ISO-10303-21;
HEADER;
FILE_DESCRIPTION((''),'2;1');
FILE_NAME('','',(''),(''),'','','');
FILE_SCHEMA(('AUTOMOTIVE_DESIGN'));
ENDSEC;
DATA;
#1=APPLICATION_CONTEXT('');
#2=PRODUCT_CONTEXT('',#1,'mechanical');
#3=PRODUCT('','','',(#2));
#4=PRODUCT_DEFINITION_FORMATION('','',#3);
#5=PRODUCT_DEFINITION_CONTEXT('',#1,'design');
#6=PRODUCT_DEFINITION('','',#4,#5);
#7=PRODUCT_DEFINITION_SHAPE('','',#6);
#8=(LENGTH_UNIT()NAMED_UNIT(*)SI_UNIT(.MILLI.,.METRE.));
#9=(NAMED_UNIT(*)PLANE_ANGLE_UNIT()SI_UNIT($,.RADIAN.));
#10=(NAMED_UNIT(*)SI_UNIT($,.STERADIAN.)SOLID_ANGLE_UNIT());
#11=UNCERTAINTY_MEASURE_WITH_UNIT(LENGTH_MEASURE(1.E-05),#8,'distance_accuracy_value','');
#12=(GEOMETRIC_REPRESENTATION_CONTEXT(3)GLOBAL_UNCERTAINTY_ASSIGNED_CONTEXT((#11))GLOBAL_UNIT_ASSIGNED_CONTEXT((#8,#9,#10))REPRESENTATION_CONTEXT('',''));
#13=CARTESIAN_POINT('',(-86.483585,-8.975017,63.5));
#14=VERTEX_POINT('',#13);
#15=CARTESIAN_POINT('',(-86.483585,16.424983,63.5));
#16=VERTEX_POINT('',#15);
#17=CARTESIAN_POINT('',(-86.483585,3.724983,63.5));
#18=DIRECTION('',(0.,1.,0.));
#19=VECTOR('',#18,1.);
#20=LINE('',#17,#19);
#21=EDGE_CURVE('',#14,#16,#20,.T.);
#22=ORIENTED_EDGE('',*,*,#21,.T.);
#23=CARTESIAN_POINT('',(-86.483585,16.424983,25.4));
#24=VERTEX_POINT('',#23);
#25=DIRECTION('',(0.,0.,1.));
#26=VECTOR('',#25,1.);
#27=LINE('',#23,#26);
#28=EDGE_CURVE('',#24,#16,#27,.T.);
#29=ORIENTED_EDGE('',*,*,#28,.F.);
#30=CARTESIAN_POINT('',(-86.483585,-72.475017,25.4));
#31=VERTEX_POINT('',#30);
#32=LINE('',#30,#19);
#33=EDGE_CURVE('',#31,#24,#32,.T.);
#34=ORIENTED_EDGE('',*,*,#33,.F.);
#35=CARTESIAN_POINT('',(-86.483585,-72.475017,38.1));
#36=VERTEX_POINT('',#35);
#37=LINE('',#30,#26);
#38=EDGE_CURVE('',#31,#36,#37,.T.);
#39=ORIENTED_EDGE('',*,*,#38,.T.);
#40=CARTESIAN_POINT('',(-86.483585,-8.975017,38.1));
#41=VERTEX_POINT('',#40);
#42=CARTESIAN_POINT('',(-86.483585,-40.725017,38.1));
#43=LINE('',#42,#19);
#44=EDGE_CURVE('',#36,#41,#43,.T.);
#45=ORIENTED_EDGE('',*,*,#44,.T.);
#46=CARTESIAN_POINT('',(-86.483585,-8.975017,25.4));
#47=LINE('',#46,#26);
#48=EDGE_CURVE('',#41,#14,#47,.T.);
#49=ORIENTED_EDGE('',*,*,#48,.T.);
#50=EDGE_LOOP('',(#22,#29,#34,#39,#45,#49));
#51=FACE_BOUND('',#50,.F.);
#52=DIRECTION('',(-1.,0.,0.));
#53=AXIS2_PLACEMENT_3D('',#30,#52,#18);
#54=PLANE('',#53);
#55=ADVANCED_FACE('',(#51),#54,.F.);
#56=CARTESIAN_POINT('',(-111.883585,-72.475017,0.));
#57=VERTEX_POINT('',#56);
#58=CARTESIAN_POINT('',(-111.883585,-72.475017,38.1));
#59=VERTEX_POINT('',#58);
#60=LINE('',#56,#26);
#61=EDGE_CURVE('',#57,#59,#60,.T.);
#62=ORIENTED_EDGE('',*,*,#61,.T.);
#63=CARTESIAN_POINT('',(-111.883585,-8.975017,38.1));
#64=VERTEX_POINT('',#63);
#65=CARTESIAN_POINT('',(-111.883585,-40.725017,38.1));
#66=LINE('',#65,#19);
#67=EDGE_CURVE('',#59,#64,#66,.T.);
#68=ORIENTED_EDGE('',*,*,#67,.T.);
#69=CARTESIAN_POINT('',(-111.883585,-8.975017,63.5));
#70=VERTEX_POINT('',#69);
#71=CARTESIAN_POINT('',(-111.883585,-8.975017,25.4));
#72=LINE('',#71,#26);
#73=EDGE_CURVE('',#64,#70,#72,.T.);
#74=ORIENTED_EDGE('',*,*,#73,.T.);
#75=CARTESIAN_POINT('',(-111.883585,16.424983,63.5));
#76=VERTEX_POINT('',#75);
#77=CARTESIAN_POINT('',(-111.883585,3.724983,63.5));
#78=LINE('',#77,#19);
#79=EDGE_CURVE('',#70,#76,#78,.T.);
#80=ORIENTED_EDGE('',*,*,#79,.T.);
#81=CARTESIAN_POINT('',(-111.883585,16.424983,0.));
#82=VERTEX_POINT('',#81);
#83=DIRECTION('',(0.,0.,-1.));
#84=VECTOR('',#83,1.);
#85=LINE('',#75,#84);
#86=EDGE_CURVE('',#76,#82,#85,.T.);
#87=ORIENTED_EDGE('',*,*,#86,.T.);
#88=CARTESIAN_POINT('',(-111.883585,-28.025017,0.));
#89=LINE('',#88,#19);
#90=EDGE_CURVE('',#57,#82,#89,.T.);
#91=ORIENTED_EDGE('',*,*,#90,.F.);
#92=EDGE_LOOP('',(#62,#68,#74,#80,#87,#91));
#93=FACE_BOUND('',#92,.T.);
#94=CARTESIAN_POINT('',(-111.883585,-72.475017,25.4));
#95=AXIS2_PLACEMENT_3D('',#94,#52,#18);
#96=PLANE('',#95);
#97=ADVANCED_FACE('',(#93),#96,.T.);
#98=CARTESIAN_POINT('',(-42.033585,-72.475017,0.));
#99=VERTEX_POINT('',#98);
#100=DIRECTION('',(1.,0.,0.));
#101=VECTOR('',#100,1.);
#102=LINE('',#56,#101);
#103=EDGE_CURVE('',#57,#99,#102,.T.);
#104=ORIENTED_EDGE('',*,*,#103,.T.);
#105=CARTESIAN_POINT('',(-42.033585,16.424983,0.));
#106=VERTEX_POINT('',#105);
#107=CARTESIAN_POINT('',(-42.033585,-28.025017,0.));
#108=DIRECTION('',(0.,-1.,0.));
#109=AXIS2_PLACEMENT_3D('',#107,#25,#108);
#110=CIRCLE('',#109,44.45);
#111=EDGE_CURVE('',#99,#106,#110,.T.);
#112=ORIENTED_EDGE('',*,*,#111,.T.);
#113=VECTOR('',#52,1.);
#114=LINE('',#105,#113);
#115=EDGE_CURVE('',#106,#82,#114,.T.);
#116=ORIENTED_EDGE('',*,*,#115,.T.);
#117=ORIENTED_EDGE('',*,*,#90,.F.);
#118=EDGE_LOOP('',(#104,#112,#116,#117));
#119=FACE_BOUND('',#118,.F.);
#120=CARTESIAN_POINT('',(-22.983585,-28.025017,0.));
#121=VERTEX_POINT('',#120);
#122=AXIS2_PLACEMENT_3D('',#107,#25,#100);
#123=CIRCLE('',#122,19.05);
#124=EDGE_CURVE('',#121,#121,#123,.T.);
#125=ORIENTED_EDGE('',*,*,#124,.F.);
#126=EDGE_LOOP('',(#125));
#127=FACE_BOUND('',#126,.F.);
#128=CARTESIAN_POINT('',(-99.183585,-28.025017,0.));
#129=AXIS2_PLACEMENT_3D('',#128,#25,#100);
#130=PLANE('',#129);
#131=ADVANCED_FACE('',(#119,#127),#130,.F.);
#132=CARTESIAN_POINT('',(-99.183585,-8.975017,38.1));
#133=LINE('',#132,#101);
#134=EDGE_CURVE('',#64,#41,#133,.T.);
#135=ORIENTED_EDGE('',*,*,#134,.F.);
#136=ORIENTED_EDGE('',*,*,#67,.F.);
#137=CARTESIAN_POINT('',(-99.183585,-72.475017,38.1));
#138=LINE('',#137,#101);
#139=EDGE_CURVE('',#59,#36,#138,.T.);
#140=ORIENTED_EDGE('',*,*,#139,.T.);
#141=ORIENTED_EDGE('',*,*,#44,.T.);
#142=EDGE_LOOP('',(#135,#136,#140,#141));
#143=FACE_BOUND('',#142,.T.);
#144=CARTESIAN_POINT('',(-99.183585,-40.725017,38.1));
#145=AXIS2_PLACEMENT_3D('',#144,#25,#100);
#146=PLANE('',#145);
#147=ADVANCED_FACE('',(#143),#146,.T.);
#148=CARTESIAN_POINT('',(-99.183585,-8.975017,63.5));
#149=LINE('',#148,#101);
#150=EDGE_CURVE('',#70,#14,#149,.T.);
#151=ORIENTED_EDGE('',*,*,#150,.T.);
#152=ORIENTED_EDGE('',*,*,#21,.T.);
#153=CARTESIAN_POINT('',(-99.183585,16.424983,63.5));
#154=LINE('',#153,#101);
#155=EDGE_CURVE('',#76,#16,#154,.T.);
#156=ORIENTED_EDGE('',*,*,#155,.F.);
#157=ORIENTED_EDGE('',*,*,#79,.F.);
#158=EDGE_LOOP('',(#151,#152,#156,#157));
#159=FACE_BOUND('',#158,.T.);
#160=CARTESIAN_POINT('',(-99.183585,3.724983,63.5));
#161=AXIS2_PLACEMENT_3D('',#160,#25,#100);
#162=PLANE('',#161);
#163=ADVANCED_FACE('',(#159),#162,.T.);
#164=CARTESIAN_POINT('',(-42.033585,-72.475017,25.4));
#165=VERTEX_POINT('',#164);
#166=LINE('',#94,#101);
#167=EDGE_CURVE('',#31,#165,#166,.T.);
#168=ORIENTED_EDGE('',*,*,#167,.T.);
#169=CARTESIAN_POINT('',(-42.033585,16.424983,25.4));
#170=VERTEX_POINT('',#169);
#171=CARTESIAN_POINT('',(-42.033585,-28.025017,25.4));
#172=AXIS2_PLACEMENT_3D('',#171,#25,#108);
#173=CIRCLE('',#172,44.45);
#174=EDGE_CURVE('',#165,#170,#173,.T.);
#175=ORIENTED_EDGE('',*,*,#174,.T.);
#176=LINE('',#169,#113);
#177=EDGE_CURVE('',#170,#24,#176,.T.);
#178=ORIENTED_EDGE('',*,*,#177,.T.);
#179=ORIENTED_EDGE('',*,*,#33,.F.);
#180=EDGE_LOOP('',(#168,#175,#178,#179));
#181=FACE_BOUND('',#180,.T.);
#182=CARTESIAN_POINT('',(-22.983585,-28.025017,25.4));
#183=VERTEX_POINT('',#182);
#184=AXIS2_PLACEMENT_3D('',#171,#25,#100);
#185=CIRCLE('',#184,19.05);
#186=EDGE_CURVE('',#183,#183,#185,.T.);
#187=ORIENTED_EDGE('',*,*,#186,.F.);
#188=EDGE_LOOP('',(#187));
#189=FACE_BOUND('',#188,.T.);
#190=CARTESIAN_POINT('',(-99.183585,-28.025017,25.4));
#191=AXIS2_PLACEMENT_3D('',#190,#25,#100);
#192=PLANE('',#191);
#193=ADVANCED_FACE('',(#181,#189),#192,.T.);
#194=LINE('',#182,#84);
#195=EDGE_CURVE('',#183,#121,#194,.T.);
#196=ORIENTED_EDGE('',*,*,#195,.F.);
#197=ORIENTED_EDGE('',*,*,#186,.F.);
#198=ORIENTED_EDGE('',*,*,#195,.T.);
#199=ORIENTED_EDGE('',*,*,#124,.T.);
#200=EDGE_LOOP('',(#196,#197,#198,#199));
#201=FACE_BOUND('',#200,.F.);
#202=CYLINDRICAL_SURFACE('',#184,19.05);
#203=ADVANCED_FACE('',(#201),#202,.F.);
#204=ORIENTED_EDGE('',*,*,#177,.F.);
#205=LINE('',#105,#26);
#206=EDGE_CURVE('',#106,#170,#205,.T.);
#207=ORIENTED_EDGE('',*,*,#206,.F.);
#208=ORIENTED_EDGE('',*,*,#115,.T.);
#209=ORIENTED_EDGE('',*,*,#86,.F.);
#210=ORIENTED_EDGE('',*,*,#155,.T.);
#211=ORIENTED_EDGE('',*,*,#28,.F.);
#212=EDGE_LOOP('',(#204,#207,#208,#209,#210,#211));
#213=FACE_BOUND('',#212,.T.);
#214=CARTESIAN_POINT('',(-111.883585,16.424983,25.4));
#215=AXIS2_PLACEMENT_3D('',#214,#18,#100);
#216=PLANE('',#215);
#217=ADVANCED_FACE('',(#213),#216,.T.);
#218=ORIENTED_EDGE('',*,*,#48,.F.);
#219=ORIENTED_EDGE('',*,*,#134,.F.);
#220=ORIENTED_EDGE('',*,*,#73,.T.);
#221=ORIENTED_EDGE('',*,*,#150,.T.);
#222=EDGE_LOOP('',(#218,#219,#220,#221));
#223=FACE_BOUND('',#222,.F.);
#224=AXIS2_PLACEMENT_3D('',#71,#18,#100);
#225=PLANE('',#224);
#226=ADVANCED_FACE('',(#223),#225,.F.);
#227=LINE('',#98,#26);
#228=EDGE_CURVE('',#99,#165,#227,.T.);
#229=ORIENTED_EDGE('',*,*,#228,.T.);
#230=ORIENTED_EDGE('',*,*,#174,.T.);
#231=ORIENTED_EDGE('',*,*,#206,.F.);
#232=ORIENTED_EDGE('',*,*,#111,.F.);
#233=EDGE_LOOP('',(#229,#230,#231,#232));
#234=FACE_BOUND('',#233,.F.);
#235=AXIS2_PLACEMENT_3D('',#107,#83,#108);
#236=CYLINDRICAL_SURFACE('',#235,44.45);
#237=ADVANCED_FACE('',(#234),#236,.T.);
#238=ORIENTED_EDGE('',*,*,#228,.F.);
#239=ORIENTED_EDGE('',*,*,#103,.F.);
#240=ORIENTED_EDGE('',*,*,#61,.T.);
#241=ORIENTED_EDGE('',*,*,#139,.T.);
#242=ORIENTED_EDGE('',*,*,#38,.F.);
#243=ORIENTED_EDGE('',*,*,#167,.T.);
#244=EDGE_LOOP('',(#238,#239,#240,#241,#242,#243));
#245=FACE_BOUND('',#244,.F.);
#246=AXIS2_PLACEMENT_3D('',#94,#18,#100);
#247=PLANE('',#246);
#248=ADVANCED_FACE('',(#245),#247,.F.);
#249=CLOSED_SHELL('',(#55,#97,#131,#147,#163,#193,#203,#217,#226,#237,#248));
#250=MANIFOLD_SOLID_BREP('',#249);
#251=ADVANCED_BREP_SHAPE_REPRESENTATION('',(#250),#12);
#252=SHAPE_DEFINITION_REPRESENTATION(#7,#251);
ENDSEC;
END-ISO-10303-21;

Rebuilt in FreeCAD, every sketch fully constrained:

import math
import FreeCAD as App
import Part
import Sketcher
Q = App.Units.Quantity

doc = App.newDocument("Part")
body = doc.addObject("PartDesign::Body", "Body")

# Sketch on XY plane
sketch1 = doc.addObject("Sketcher::SketchObject", "Sketch")
body.addObject(sketch1)
sketch1.AttachmentSupport = (doc.XY_Plane, [""])
sketch1.MapMode = "FlatFace"
sketch1.addGeometry([
    Part.LineSegment(App.Vector(-112, 16, 0), App.Vector(-112, -72, 0)),
    Part.LineSegment(App.Vector(-112, -72, 0), App.Vector(-42, -72, 0)),
    Part.ArcOfCircle(Part.Circle(App.Vector(-42, -28, 0), App.Vector(0, 0, 1), 44), math.radians(-90), math.radians(90)),
    Part.LineSegment(App.Vector(-42, 16, 0), App.Vector(-112, 16, 0)),
], False)
sketch1.addConstraint([
    Sketcher.Constraint("Coincident", 0, 2, 1, 1),
    Sketcher.Constraint("Tangent", 1, 2, 2, 1),
    Sketcher.Constraint("Tangent", 2, 2, 3, 1),
    Sketcher.Constraint("Coincident", 3, 2, 0, 1),
    Sketcher.Constraint("Vertical", 0),
    Sketcher.Constraint("Horizontal", 1),
    Sketcher.Constraint("Horizontal", 3),
    Sketcher.Constraint("Radius", 2, Q("1.75 in")),
    Sketcher.Constraint("DistanceX", 1, 1, 1, 2, Q("2.75 in")),
    Sketcher.Constraint("DistanceX", 2, 3, -1, 1, 42.033585),
    Sketcher.Constraint("DistanceY", 2, 3, -1, 1, 28.025017),
])
pad1 = doc.addObject("PartDesign::Pad", "Pad")
body.addObject(pad1)
pad1.Profile = sketch1
pad1.Length = Q("1 in")

# Sketch on XY plane
sketch2 = doc.addObject("Sketcher::SketchObject", "Sketch001")
body.addObject(sketch2)
sketch2.AttachmentSupport = (doc.XY_Plane, [""])
sketch2.MapMode = "FlatFace"
sketch2.AttachmentOffset = App.Placement(App.Vector(0, 0, 1 * 25.4), App.Rotation())
sketch2.addGeometry([
    Part.LineSegment(App.Vector(-112, 16, 0), App.Vector(-112, -9, 0)),
    Part.LineSegment(App.Vector(-112, -9, 0), App.Vector(-86, -9, 0)),
    Part.LineSegment(App.Vector(-86, -9, 0), App.Vector(-86, 16, 0)),
    Part.LineSegment(App.Vector(-86, 16, 0), App.Vector(-112, 16, 0)),
], False)
sketch2.addConstraint([
    Sketcher.Constraint("Coincident", 0, 2, 1, 1),
    Sketcher.Constraint("Coincident", 1, 2, 2, 1),
    Sketcher.Constraint("Coincident", 2, 2, 3, 1),
    Sketcher.Constraint("Coincident", 3, 2, 0, 1),
    Sketcher.Constraint("Vertical", 0),
    Sketcher.Constraint("Horizontal", 1),
    Sketcher.Constraint("Vertical", 2),
    Sketcher.Constraint("Horizontal", 3),
    Sketcher.Constraint("Equal", 3, 0),
    Sketcher.Constraint("DistanceX", 1, 1, 1, 2, Q("1 in")),
    Sketcher.Constraint("DistanceX", 0, 2, -1, 1, 111.883585),
    Sketcher.Constraint("DistanceY", 0, 2, -1, 1, 8.975017),
])
pad2 = doc.addObject("PartDesign::Pad", "Pad001")
body.addObject(pad2)
pad2.Profile = sketch2
pad2.Length = Q("1.5 in")

# Sketch on XY plane
sketch3 = doc.addObject("Sketcher::SketchObject", "Sketch002")
body.addObject(sketch3)
sketch3.AttachmentSupport = (doc.XY_Plane, [""])
sketch3.MapMode = "FlatFace"
sketch3.AttachmentOffset = App.Placement(App.Vector(0, 0, 1 * 25.4), App.Rotation())
sketch3.addGeometry([
    Part.LineSegment(App.Vector(-112, -9, 0), App.Vector(-112, -72, 0)),
    Part.LineSegment(App.Vector(-112, -72, 0), App.Vector(-86, -72, 0)),
    Part.LineSegment(App.Vector(-86, -72, 0), App.Vector(-86, -9, 0)),
    Part.LineSegment(App.Vector(-86, -9, 0), App.Vector(-112, -9, 0)),
], False)
sketch3.addConstraint([
    Sketcher.Constraint("Coincident", 0, 2, 1, 1),
    Sketcher.Constraint("Coincident", 1, 2, 2, 1),
    Sketcher.Constraint("Coincident", 2, 2, 3, 1),
    Sketcher.Constraint("Coincident", 3, 2, 0, 1),
    Sketcher.Constraint("Vertical", 0),
    Sketcher.Constraint("Horizontal", 1),
    Sketcher.Constraint("Vertical", 2),
    Sketcher.Constraint("Horizontal", 3),
    Sketcher.Constraint("DistanceX", 1, 1, 1, 2, Q("1 in")),
    Sketcher.Constraint("DistanceY", 0, 2, 0, 1, Q("2.5 in")),
    Sketcher.Constraint("DistanceX", 0, 2, -1, 1, 111.883585),
    Sketcher.Constraint("DistanceY", 0, 2, -1, 1, 72.475017),
])
pad3 = doc.addObject("PartDesign::Pad", "Pad002")
body.addObject(pad3)
pad3.Profile = sketch3
pad3.Length = Q("0.5 in")

# Sketch on XY plane
sketch4 = doc.addObject("Sketcher::SketchObject", "Sketch003")
body.addObject(sketch4)
sketch4.AttachmentSupport = (doc.XY_Plane, [""])
sketch4.MapMode = "FlatFace"
sketch4.AttachmentOffset = App.Placement(App.Vector(0, 0, 1 * 25.4), App.Rotation())
sketch4.addGeometry(Part.Circle(App.Vector(-42, -28, 0), App.Vector(0, 0, 1), 19), False)
sketch4.addConstraint([
    Sketcher.Constraint("Diameter", 0, Q("1.5 in")),
    Sketcher.Constraint("DistanceX", 0, 3, -1, 1, 42.033585),
    Sketcher.Constraint("DistanceY", 0, 3, -1, 1, 28.025017),
])
pocket1 = doc.addObject("PartDesign::Pocket", "Pocket")
body.addObject(pocket1)
pocket1.Profile = sketch4
pocket1.Length = Q("1 in")

doc.recompute()
